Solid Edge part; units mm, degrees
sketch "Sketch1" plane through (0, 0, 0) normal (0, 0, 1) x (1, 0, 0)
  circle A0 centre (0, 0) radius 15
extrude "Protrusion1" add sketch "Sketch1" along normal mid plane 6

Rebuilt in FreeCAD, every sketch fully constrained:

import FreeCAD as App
import Part
import Sketcher

doc = App.newDocument("Part")
body = doc.addObject("PartDesign::Body", "Body")

sketch1 = doc.addObject("Sketcher::SketchObject", "Sketch")
body.addObject(sketch1)
sketch1.AttachmentSupport = (doc.XY_Plane, [""])
sketch1.MapMode = "FlatFace"
sketch1.addGeometry(Part.Circle(App.Vector(0, 0, 0), App.Vector(0, 0, 1), 15), False)
sketch1.addConstraint([
    Sketcher.Constraint("Coincident", 0, 3, -1, 1),
    Sketcher.Constraint("Diameter", 0, 30.0),
])
pad1 = doc.addObject("PartDesign::Pad", "Pad")
body.addObject(pad1)
pad1.Profile = sketch1
pad1.Length = 6
pad1.Midplane = True

doc.recompute()
